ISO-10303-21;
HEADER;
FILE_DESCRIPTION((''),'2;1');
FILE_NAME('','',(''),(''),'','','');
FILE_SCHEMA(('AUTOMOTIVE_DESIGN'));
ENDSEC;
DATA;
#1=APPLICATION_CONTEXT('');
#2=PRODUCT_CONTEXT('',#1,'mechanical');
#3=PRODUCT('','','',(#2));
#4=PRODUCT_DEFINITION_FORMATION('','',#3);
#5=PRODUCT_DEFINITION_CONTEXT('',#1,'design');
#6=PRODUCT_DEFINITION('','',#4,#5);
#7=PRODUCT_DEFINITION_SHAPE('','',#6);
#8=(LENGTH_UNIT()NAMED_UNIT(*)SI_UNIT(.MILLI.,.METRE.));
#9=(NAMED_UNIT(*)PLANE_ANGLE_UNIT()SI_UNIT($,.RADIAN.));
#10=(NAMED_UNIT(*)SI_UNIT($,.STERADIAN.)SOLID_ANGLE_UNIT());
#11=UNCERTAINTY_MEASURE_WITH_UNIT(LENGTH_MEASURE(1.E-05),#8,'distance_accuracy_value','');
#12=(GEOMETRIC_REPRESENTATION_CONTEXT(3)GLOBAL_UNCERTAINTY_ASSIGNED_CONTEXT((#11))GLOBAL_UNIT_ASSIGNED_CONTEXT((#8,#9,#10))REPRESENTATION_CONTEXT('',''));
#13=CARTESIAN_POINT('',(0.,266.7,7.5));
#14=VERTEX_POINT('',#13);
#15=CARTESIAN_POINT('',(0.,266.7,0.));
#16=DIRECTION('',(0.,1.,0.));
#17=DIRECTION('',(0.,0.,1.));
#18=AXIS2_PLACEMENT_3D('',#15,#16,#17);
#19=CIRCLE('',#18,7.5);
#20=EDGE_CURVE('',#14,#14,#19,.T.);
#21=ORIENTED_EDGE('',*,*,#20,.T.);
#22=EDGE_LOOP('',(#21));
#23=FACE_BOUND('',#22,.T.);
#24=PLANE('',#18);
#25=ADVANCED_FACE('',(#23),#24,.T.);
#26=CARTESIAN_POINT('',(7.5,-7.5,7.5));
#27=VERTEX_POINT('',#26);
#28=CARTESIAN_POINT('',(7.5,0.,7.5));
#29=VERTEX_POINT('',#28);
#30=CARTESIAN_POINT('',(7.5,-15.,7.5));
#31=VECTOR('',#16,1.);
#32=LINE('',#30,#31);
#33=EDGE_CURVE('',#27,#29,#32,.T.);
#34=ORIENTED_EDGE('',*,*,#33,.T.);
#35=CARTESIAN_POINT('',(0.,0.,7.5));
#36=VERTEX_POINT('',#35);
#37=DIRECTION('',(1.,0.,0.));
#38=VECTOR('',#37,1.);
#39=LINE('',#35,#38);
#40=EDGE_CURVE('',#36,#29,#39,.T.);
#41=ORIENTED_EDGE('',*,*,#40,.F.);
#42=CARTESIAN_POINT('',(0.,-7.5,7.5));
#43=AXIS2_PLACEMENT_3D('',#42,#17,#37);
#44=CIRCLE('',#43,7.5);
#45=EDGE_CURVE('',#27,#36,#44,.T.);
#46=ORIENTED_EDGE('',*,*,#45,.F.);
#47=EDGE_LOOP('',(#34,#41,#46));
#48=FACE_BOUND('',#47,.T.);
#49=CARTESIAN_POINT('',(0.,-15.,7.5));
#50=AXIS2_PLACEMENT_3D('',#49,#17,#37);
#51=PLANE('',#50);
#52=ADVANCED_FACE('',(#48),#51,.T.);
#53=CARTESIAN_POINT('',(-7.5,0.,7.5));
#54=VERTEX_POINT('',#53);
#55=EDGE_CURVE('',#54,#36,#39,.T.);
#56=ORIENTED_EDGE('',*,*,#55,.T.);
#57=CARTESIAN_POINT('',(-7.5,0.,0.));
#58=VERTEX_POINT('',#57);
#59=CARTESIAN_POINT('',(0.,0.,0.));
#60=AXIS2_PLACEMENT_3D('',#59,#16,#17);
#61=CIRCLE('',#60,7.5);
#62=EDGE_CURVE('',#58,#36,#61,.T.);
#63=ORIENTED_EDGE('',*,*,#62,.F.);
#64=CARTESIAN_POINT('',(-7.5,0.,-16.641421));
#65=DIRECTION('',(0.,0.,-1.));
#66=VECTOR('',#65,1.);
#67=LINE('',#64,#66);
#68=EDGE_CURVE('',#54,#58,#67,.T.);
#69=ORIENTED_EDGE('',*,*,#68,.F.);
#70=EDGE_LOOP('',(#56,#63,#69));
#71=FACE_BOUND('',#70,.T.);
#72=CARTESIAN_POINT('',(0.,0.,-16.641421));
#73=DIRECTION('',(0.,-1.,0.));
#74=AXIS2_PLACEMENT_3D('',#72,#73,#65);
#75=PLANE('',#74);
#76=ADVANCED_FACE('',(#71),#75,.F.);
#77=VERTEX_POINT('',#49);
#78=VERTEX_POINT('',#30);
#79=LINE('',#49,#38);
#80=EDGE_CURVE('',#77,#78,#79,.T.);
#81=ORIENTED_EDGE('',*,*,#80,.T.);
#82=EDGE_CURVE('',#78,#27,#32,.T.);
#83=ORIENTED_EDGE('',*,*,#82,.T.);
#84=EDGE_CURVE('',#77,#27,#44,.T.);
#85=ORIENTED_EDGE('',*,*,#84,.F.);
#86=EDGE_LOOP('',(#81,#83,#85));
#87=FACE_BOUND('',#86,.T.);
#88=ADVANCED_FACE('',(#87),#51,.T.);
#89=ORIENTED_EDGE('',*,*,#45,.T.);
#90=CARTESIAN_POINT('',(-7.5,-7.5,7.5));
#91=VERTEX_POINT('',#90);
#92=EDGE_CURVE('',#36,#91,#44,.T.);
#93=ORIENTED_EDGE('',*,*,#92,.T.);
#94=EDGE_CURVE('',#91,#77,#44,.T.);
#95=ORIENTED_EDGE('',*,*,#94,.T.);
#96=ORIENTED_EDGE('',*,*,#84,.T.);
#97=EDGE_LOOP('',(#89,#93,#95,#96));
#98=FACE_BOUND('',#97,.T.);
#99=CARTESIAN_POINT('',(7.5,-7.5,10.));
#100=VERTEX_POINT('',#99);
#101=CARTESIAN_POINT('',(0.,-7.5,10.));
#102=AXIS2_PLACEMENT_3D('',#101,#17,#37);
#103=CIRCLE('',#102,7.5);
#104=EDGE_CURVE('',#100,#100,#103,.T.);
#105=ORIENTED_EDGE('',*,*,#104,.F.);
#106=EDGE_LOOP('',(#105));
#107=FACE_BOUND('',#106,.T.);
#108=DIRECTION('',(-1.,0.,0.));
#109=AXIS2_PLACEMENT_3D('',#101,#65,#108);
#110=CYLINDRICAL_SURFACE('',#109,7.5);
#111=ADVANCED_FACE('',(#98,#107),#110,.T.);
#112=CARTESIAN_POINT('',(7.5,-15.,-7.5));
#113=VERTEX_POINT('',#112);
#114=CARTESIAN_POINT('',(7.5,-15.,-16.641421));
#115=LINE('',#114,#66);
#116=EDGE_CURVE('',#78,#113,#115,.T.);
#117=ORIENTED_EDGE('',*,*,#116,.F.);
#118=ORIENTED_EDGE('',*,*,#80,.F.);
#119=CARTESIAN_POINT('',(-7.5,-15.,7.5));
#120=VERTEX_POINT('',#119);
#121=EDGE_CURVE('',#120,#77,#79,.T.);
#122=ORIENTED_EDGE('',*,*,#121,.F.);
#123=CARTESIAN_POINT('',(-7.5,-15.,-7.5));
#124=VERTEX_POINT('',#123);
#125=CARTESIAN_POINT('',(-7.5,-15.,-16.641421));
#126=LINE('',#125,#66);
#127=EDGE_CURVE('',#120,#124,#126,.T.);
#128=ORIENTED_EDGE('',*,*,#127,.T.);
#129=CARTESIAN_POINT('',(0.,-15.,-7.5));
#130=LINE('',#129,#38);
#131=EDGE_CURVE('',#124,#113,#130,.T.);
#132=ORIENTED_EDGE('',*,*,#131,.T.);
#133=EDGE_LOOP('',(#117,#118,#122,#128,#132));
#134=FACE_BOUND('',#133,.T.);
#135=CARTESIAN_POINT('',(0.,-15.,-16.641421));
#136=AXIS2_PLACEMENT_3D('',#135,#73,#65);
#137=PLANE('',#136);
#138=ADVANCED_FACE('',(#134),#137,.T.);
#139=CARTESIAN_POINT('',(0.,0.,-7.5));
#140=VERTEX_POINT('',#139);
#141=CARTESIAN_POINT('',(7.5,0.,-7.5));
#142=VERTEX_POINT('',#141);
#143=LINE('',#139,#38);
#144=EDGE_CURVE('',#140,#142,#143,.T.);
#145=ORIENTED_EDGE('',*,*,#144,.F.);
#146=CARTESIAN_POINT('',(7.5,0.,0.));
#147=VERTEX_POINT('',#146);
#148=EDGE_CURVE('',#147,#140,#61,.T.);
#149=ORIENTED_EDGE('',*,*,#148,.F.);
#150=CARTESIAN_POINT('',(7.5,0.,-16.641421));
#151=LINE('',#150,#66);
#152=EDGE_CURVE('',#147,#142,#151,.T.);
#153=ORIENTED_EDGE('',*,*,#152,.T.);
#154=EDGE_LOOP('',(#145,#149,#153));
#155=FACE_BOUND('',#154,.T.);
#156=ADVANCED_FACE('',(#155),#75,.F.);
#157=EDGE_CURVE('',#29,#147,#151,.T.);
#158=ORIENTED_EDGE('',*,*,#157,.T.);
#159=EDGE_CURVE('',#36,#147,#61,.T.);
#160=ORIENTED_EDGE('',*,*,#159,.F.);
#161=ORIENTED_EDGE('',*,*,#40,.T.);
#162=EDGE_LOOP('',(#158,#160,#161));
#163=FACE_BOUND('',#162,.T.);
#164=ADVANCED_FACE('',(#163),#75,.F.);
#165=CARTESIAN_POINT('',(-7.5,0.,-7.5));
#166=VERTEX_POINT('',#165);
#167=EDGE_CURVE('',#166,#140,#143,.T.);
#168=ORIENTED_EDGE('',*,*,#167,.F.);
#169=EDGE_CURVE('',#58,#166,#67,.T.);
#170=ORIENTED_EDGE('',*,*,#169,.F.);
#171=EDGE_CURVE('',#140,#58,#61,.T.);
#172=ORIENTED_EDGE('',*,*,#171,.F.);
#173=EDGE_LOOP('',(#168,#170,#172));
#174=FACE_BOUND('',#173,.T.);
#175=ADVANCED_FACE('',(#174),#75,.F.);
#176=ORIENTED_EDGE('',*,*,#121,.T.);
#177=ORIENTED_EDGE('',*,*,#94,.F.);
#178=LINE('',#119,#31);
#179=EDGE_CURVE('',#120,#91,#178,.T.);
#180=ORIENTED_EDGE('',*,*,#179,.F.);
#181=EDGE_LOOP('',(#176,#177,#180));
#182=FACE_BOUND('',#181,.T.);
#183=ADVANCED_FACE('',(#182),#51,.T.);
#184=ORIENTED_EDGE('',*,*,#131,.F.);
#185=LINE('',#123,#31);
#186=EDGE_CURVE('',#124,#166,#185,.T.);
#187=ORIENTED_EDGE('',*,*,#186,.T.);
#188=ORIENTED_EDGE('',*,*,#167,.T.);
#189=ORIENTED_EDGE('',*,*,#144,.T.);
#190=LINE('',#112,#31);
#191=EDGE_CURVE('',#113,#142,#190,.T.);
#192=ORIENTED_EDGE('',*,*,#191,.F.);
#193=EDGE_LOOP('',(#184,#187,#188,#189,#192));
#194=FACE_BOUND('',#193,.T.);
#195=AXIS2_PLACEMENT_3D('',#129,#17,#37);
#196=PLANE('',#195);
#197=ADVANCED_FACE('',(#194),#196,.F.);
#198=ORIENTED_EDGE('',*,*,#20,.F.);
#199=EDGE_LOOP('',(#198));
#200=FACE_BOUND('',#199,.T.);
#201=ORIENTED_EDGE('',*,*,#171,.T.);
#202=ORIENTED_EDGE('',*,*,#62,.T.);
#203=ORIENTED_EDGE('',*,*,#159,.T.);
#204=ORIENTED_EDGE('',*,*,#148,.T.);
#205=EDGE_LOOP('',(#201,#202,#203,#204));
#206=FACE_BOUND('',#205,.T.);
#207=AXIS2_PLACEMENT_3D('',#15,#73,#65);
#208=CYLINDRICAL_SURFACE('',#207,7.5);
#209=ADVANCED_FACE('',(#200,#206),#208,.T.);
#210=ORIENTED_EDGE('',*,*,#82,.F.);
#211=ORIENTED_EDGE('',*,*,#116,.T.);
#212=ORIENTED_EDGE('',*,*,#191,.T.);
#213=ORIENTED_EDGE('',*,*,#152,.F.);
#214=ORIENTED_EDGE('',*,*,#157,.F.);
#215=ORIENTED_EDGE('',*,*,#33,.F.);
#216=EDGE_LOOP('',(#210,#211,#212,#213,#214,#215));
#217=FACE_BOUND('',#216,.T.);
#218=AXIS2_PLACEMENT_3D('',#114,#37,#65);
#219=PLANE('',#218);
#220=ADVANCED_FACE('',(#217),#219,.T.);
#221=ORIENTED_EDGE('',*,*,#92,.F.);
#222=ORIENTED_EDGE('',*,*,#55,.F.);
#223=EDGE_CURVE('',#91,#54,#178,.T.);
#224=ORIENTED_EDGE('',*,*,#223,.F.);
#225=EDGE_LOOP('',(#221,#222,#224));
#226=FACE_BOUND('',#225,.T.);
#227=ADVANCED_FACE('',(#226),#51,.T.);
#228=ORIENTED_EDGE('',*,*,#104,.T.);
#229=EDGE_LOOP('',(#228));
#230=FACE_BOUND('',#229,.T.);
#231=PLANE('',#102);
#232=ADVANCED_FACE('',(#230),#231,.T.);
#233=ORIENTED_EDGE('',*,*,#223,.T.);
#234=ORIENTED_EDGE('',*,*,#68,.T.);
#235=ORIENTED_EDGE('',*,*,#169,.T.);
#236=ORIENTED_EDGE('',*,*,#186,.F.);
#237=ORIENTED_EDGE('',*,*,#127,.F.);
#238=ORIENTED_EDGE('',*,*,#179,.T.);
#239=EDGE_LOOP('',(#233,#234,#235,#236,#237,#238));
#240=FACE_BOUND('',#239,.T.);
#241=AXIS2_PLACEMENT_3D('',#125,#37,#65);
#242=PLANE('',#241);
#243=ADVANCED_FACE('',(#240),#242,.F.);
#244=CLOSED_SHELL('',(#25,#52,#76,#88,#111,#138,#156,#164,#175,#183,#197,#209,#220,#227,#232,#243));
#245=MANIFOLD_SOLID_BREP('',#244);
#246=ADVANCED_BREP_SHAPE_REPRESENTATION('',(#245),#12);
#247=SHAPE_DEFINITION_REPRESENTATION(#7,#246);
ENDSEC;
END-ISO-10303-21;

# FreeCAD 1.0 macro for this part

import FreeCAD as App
import Part
import Sketcher


def add_polygon(sketch, points):
    """Adds a closed chain of lines whose ends are joined by coincident constraints."""
    first, n = sketch.GeometryCount, len(points)
    for a, b in zip(points, points[1:] + points[:1]):
        sketch.addGeometry(Part.LineSegment(App.Vector(*a, 0), App.Vector(*b, 0)), False)
    for i in range(n):
        sketch.addConstraint(Sketcher.Constraint("Coincident", first + i, 2, first + (i + 1) % n, 1))

doc = App.newDocument("Part")
body = doc.addObject("PartDesign::Body", "Body")

# Sketch on XZ plane
sketch1 = body.newObject("Sketcher::SketchObject", "Sketch")
sketch1.AttachmentSupport = (doc.getObject("XZ_Plane"), [""])
sketch1.MapMode = "FlatFace"
sketch1.addGeometry(Part.Circle(App.Vector(0, 0, 0), App.Vector(0, 0, 1), 8), False)
sketch1.addConstraint(Sketcher.Constraint("Coincident", 0, 3, -1, 1))
sketch1.addConstraint(Sketcher.Constraint("Diameter", 0, 15.0))
pad1 = body.newObject("PartDesign::Pad", "Pad")
pad1.Profile = sketch1
pad1.Length = 266.7
pad1.Reversed = True

# Sketch on XZ plane
sketch2 = body.newObject("Sketcher::SketchObject", "Sketch001")
sketch2.AttachmentSupport = (doc.getObject("XZ_Plane"), [""])
sketch2.MapMode = "FlatFace"
sketch2.AttachmentOffset = App.Placement(App.Vector(0, 0, 15), App.Rotation())
add_polygon(sketch2, [(-8, 8), (-8, -8), (8, -8), (8, 8)])  # lines 0-3
sketch2.addConstraint(Sketcher.Constraint("Vertical", 0))
sketch2.addConstraint(Sketcher.Constraint("Horizontal", 1))
sketch2.addConstraint(Sketcher.Constraint("Vertical", 2))
sketch2.addConstraint(Sketcher.Constraint("Horizontal", 3))
sketch2.addConstraint(Sketcher.Constraint("Symmetric", 0, 2, 2, 2, -1, 1))
sketch2.addConstraint(Sketcher.Constraint("Equal", 3, 0))
sketch2.addConstraint(Sketcher.Constraint("DistanceX", 1, 1, 1, 2, 15.0))
pad2 = body.newObject("PartDesign::Pad", "Pad001")
pad2.Profile = sketch2
pad2.Length = 15
pad2.Reversed = True

# Sketch on XY plane
sketch3 = body.newObject("Sketcher::SketchObject", "Sketch002")
sketch3.AttachmentSupport = (doc.getObject("XY_Plane"), [""])
sketch3.MapMode = "FlatFace"
sketch3.AttachmentOffset = App.Placement(App.Vector(0, 0, 7.5), App.Rotation())
sketch3.addGeometry(Part.Circle(App.Vector(0, -8, 0), App.Vector(0, 0, 1), 8), False)
sketch3.addConstraint(Sketcher.Constraint("PointOnObject", 0, 3, -2))
sketch3.addConstraint(Sketcher.Constraint("Diameter", 0, 15.0))
sketch3.addConstraint(Sketcher.Constraint("DistanceY", 0, 3, -1, 1, 7.5))
pad3 = body.newObject("PartDesign::Pad", "Pad002")
pad3.Profile = sketch3
pad3.Length = 2.5

doc.recompute()
